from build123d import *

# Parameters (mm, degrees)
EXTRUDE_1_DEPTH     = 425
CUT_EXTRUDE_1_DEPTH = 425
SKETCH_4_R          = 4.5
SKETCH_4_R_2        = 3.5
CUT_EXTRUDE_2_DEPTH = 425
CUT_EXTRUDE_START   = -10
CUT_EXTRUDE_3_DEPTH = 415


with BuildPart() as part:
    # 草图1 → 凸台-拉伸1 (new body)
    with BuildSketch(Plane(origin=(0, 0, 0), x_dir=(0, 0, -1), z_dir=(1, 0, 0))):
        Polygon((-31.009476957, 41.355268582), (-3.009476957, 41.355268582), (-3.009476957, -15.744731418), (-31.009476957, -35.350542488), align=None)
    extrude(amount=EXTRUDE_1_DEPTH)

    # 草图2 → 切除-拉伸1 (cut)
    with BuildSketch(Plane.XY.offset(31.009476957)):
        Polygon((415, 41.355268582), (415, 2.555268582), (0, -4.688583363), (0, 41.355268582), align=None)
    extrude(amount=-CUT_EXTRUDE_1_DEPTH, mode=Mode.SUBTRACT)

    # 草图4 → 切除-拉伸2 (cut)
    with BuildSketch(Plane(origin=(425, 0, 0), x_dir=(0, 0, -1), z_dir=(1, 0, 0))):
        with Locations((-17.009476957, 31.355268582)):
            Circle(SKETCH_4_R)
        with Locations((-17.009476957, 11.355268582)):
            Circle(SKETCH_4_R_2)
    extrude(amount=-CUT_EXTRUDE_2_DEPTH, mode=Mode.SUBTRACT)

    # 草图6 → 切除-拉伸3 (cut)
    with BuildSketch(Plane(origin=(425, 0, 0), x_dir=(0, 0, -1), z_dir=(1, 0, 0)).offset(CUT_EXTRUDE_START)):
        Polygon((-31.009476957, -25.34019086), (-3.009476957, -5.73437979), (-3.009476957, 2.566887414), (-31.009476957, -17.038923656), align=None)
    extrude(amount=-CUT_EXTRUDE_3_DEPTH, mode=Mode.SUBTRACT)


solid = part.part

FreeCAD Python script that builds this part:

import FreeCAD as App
import Part
import Sketcher

V = App.Vector
Q = App.Units.Quantity


def add_polygon(sketch, points):
    """Adds a closed chain of lines whose ends are joined by coincident constraints."""
    first, n = sketch.GeometryCount, len(points)
    for a, b in zip(points, points[1:] + points[:1]):
        sketch.addGeometry(Part.LineSegment(App.Vector(*a, 0), App.Vector(*b, 0)), False)
    for i in range(n):
        sketch.addConstraint(Sketcher.Constraint("Coincident", first + i, 2, first + (i + 1) % n, 1))

doc = App.newDocument("Part")
params = doc.addObject("Spreadsheet::Sheet", "Params")
for row, (alias, value) in enumerate([
    ("sketch1_height", "28 mm"),
    ("sketch1_width", "57.1 mm"),
    ("pad1_length", "425 mm"),
    ("sketch2_width", "415 mm"),
    ("sketch2_height", "38.8 mm"),
    ("pocket1_length", "425 mm"),
    ("sketch3_diameter", "9 mm"),
    ("sketch3_diameter2", "7 mm"),
    ("pocket2_length", "425 mm"),
    ("pocket3_length", "415 mm"),
], start=1):
    params.set(f"A{row}", alias)
    params.set(f"B{row}", "=" + value)
    params.setAlias(f"B{row}", alias)

body = doc.addObject("PartDesign::Body", "Body")

sketch1 = body.newObject("Sketcher::SketchObject", "Sketch")
sketch1.AttachmentSupport = (doc.getObject("YZ_Plane"), [""])
sketch1.MapMode = "FlatFace"
add_polygon(sketch1, [(41, 3), (41, 31), (-35, 31), (-16, 3)])
sketch1.addConstraint(Sketcher.Constraint("Vertical", 0))
sketch1.addConstraint(Sketcher.Constraint("Horizontal", 1))
sketch1.addConstraint(Sketcher.Constraint("Horizontal", 3))
sketch1.addConstraint(Sketcher.Constraint("DistanceY", 0, 1, 0, 2, Q("28 mm")))
sketch1.addConstraint(Sketcher.Constraint("Angle", 2, Q("-55 deg")))
sketch1.addConstraint(Sketcher.Constraint("DistanceX", 3, 1, 3, 2, Q("57.1 mm")))
sketch1.addConstraint(Sketcher.Constraint("DistanceX", -1, 1, 0, 2, Q("41.355269 mm")))
sketch1.addConstraint(Sketcher.Constraint("DistanceY", -1, 1, 0, 2, Q("31.009477 mm")))
sketch1.setExpression("Constraints[7]", "Params.sketch1_height")
sketch1.setExpression("Constraints[9]", "Params.sketch1_width")
pad1 = body.newObject("PartDesign::Pad", "Pad")
pad1.Profile = sketch1
pad1.setExpression("Length", "Params.pad1_length")

sketch2 = body.newObject("Sketcher::SketchObject", "Sketch001")
sketch2.AttachmentSupport = (doc.getObject("XY_Plane"), [""])
sketch2.MapMode = "FlatFace"
sketch2.AttachmentOffset = App.Placement(V(0, 0, 31.009477), App.Rotation())
add_polygon(sketch2, [(415, 3), (415, 41), (0, 41), (0, -5)])
sketch2.addConstraint(Sketcher.Constraint("Vertical", 0))
sketch2.addConstraint(Sketcher.Constraint("Horizontal", 1))
sketch2.addConstraint(Sketcher.Constraint("Vertical", 2))
sketch2.addConstraint(Sketcher.Constraint("PointOnObject", 1, 2, -2))
sketch2.addConstraint(Sketcher.Constraint("DistanceX", 1, 2, 1, 1, Q("415 mm")))
sketch2.addConstraint(Sketcher.Constraint("Angle", 3, Q("1 deg")))
sketch2.addConstraint(Sketcher.Constraint("DistanceY", 0, 1, 0, 2, Q("38.8 mm")))
sketch2.addConstraint(Sketcher.Constraint("DistanceY", -1, 1, 0, 2, Q("41.355269 mm")))
sketch2.setExpression("Constraints[8]", "Params.sketch2_width")
sketch2.setExpression("Constraints[10]", "Params.sketch2_height")
pocket1 = body.newObject("PartDesign::Pocket", "Pocket")
pocket1.Profile = sketch2
pocket1.setExpression("Length", "Params.pocket1_length")

sketch3 = body.newObject("Sketcher::SketchObject", "Sketch002")
sketch3.AttachmentSupport = (doc.getObject("YZ_Plane"), [""])
sketch3.MapMode = "FlatFace"
sketch3.AttachmentOffset = App.Placement(V(0, 0, 425), App.Rotation())
sketch3.addGeometry(Part.Circle(V(31.4, 17, 0), V(0, 0, 1), 4.5), False)
sketch3.addGeometry(Part.Circle(V(11.4, 17, 0), V(0, 0, 1), 3.5), False)
sketch3.addConstraint(Sketcher.Constraint("Horizontal", 0, 3, 1, 3))
sketch3.addConstraint(Sketcher.Constraint("Diameter", 0, Q("9 mm")))
sketch3.addConstraint(Sketcher.Constraint("Diameter", 1, Q("7 mm")))
sketch3.addConstraint(Sketcher.Constraint("DistanceX", 1, 3, 0, 3, Q("20 mm")))
sketch3.addConstraint(Sketcher.Constraint("DistanceX", -1, 1, 0, 3, Q("31.355269 mm")))
sketch3.addConstraint(Sketcher.Constraint("DistanceY", -1, 1, 0, 3, Q("17.009477 mm")))
sketch3.setExpression("Constraints[1]", "Params.sketch3_diameter")
sketch3.setExpression("Constraints[2]", "Params.sketch3_diameter2")
pocket2 = body.newObject("PartDesign::Pocket", "Pocket001")
pocket2.Profile = sketch3
pocket2.setExpression("Length", "Params.pocket2_length")

sketch4 = body.newObject("Sketcher::SketchObject", "Sketch003")
sketch4.AttachmentSupport = (doc.getObject("YZ_Plane"), [""])
sketch4.MapMode = "FlatFace"
sketch4.AttachmentOffset = App.Placement(V(0, 0, 415), App.Rotation())
add_polygon(sketch4, [(-25, 31), (-6, 3), (3, 3), (-17, 31)])
sketch4.addConstraint(Sketcher.Constraint("Horizontal", 1))
sketch4.addConstraint(Sketcher.Constraint("Horizontal", 3))
sketch4.addConstraint(Sketcher.Constraint("Parallel", 0, 2))
sketch4.addConstraint(Sketcher.Constraint("Angle", 0, Q("-55 deg")))
sketch4.addConstraint(Sketcher.Constraint("DistanceY", 0, 2, 2, 2, Q("28 mm")))
sketch4.addConstraint(Sketcher.Constraint("DistanceX", 1, 1, 1, 2, Q("8.301267 mm")))
sketch4.addConstraint(Sketcher.Constraint("DistanceX", 0, 2, -1, 1, Q("5.73438 mm")))
sketch4.addConstraint(Sketcher.Constraint("DistanceY", -1, 1, 0, 2, Q("3.009477 mm")))
pocket3 = body.newObject("PartDesign::Pocket", "Pocket002")
pocket3.Profile = sketch4
pocket3.setExpression("Length", "Params.pocket3_length")

doc.recompute()
